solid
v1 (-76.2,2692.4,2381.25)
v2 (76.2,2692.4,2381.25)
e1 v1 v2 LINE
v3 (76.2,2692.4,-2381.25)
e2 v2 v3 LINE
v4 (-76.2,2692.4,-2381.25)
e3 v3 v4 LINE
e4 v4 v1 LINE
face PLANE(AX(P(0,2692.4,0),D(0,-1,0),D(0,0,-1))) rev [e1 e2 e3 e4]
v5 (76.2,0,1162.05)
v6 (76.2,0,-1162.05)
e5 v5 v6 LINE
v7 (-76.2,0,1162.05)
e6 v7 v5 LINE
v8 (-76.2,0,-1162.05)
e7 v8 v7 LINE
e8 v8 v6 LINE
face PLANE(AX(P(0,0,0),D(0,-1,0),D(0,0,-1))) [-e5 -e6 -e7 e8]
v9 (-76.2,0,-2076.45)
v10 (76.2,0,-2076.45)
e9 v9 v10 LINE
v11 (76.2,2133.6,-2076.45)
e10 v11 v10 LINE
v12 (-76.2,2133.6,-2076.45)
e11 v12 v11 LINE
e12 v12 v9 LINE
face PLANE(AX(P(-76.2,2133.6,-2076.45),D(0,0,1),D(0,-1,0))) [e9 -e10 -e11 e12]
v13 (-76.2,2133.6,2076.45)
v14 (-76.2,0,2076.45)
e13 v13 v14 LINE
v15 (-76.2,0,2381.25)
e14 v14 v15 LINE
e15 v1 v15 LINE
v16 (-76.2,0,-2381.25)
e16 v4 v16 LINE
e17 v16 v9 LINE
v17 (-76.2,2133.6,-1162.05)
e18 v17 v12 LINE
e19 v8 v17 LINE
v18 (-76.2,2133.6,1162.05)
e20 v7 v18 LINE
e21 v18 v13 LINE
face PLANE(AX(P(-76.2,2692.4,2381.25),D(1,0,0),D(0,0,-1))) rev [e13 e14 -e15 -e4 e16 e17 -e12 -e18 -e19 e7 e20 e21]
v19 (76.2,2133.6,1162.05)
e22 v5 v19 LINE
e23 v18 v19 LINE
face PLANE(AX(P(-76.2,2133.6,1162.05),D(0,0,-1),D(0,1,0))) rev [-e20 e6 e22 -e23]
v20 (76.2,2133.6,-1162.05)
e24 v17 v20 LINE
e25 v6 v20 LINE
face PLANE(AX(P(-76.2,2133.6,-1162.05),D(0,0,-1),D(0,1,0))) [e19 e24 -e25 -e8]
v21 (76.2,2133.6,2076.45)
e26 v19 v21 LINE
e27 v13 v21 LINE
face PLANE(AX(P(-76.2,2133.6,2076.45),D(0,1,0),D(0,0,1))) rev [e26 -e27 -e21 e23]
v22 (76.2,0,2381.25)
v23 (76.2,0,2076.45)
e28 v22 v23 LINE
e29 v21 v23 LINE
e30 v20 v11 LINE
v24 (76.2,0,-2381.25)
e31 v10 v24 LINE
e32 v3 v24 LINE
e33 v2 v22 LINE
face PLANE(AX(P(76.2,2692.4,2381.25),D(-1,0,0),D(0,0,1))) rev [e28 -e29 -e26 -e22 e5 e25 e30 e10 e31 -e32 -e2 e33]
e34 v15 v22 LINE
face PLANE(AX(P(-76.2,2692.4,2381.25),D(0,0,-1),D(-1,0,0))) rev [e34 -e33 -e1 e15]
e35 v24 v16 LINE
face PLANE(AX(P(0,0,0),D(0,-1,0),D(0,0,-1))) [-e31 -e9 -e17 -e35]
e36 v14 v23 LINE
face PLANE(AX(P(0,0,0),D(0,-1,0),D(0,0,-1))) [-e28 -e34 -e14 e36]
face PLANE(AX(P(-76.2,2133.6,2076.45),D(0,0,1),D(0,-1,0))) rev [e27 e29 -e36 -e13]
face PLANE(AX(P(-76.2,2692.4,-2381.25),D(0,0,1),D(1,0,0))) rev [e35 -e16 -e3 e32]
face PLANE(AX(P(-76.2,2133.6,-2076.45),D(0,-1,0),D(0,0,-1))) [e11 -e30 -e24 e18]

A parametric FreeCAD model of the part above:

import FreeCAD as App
import Part
import Sketcher

V = App.Vector
Q = App.Units.Quantity


def add_polygon(sketch, points):
    """Adds a closed chain of lines whose ends are joined by coincident constraints."""
    first, n = sketch.GeometryCount, len(points)
    for a, b in zip(points, points[1:] + points[:1]):
        sketch.addGeometry(Part.LineSegment(App.Vector(*a, 0), App.Vector(*b, 0)), False)
    for i in range(n):
        sketch.addConstraint(Sketcher.Constraint("Coincident", first + i, 2, first + (i + 1) % n, 1))

doc = App.newDocument("Part")
params = doc.addObject("Spreadsheet::Sheet", "Params")
for row, (alias, value) in enumerate([
    ("sketch1_width", "6 in"),
    ("sketch1_height", "187.5 in"),
    ("pad1_length", "106 in"),
    ("sketch2_width", "84 in"),
    ("sketch2_height", "36 in"),
], start=1):
    params.set(f"A{row}", alias)
    params.set(f"B{row}", "=" + value)
    params.setAlias(f"B{row}", alias)

body = doc.addObject("PartDesign::Body", "Body")

# Sketch on XZ plane
sketch1 = body.newObject("Sketcher::SketchObject", "Sketch")
sketch1.AttachmentSupport = (doc.getObject("XZ_Plane"), [""])
sketch1.MapMode = "FlatFace"
add_polygon(sketch1, [(-76, -2381), (-76, 2381), (76, 2381), (76, -2381)])  # lines 0-3
sketch1.addConstraint(Sketcher.Constraint("Vertical", 0))
sketch1.addConstraint(Sketcher.Constraint("Horizontal", 1))
sketch1.addConstraint(Sketcher.Constraint("Vertical", 2))
sketch1.addConstraint(Sketcher.Constraint("Horizontal", 3))
sketch1.addConstraint(Sketcher.Constraint("Symmetric", 0, 2, 2, 2, -1, 1))
sketch1.addConstraint(Sketcher.Constraint("DistanceX", 1, 1, 1, 2, Q("6 in")))
sketch1.addConstraint(Sketcher.Constraint("DistanceY", 0, 1, 0, 2, Q("187.5 in")))
sketch1.setExpression("Constraints[9]", "Params.sketch1_width")
sketch1.setExpression("Constraints[10]", "Params.sketch1_height")
pad1 = body.newObject("PartDesign::Pad", "Pad")
pad1.Profile = sketch1
pad1.setExpression("Length", "Params.pad1_length")
pad1.Reversed = True

# Sketch on YZ plane
sketch2 = body.newObject("Sketcher::SketchObject", "Sketch001")
sketch2.AttachmentSupport = (doc.getObject("YZ_Plane"), [""])
sketch2.MapMode = "FlatFace"
sketch2.AttachmentOffset = App.Placement(V(0, 0, 3 * 25.4), App.Rotation())
add_polygon(sketch2, [(2134, 2076), (0, 2076), (0, 1162), (2134, 1162)])  # lines 0-3
sketch2.addConstraint(Sketcher.Constraint("Horizontal", 0))
sketch2.addConstraint(Sketcher.Constraint("Vertical", 1))
sketch2.addConstraint(Sketcher.Constraint("Horizontal", 2))
sketch2.addConstraint(Sketcher.Constraint("Vertical", 3))
sketch2.addConstraint(Sketcher.Constraint("PointOnObject", 0, 2, -2))
sketch2.addConstraint(Sketcher.Constraint("DistanceX", 0, 2, 0, 1, Q("84 in")))
sketch2.addConstraint(Sketcher.Constraint("DistanceY", 1, 2, 1, 1, Q("36 in")))
sketch2.addConstraint(Sketcher.Constraint("DistanceY", -1, 1, 0, 2, Q("81.75 in")))
sketch2.setExpression("Constraints[9]", "Params.sketch2_width")
sketch2.setExpression("Constraints[10]", "Params.sketch2_height")
pocket1 = body.newObject("PartDesign::Pocket", "Pocket")
pocket1.Profile = sketch2
pocket1.Type = "ThroughAll"
doc.recompute()

mirrored = body.newObject("PartDesign::Mirrored", "Mirrored")
mirrored.Originals = [pocket1]
mirrored.MirrorPlane = (doc.getObject("XY_Plane"), [""])
body.Tip = mirrored

doc.recompute()
